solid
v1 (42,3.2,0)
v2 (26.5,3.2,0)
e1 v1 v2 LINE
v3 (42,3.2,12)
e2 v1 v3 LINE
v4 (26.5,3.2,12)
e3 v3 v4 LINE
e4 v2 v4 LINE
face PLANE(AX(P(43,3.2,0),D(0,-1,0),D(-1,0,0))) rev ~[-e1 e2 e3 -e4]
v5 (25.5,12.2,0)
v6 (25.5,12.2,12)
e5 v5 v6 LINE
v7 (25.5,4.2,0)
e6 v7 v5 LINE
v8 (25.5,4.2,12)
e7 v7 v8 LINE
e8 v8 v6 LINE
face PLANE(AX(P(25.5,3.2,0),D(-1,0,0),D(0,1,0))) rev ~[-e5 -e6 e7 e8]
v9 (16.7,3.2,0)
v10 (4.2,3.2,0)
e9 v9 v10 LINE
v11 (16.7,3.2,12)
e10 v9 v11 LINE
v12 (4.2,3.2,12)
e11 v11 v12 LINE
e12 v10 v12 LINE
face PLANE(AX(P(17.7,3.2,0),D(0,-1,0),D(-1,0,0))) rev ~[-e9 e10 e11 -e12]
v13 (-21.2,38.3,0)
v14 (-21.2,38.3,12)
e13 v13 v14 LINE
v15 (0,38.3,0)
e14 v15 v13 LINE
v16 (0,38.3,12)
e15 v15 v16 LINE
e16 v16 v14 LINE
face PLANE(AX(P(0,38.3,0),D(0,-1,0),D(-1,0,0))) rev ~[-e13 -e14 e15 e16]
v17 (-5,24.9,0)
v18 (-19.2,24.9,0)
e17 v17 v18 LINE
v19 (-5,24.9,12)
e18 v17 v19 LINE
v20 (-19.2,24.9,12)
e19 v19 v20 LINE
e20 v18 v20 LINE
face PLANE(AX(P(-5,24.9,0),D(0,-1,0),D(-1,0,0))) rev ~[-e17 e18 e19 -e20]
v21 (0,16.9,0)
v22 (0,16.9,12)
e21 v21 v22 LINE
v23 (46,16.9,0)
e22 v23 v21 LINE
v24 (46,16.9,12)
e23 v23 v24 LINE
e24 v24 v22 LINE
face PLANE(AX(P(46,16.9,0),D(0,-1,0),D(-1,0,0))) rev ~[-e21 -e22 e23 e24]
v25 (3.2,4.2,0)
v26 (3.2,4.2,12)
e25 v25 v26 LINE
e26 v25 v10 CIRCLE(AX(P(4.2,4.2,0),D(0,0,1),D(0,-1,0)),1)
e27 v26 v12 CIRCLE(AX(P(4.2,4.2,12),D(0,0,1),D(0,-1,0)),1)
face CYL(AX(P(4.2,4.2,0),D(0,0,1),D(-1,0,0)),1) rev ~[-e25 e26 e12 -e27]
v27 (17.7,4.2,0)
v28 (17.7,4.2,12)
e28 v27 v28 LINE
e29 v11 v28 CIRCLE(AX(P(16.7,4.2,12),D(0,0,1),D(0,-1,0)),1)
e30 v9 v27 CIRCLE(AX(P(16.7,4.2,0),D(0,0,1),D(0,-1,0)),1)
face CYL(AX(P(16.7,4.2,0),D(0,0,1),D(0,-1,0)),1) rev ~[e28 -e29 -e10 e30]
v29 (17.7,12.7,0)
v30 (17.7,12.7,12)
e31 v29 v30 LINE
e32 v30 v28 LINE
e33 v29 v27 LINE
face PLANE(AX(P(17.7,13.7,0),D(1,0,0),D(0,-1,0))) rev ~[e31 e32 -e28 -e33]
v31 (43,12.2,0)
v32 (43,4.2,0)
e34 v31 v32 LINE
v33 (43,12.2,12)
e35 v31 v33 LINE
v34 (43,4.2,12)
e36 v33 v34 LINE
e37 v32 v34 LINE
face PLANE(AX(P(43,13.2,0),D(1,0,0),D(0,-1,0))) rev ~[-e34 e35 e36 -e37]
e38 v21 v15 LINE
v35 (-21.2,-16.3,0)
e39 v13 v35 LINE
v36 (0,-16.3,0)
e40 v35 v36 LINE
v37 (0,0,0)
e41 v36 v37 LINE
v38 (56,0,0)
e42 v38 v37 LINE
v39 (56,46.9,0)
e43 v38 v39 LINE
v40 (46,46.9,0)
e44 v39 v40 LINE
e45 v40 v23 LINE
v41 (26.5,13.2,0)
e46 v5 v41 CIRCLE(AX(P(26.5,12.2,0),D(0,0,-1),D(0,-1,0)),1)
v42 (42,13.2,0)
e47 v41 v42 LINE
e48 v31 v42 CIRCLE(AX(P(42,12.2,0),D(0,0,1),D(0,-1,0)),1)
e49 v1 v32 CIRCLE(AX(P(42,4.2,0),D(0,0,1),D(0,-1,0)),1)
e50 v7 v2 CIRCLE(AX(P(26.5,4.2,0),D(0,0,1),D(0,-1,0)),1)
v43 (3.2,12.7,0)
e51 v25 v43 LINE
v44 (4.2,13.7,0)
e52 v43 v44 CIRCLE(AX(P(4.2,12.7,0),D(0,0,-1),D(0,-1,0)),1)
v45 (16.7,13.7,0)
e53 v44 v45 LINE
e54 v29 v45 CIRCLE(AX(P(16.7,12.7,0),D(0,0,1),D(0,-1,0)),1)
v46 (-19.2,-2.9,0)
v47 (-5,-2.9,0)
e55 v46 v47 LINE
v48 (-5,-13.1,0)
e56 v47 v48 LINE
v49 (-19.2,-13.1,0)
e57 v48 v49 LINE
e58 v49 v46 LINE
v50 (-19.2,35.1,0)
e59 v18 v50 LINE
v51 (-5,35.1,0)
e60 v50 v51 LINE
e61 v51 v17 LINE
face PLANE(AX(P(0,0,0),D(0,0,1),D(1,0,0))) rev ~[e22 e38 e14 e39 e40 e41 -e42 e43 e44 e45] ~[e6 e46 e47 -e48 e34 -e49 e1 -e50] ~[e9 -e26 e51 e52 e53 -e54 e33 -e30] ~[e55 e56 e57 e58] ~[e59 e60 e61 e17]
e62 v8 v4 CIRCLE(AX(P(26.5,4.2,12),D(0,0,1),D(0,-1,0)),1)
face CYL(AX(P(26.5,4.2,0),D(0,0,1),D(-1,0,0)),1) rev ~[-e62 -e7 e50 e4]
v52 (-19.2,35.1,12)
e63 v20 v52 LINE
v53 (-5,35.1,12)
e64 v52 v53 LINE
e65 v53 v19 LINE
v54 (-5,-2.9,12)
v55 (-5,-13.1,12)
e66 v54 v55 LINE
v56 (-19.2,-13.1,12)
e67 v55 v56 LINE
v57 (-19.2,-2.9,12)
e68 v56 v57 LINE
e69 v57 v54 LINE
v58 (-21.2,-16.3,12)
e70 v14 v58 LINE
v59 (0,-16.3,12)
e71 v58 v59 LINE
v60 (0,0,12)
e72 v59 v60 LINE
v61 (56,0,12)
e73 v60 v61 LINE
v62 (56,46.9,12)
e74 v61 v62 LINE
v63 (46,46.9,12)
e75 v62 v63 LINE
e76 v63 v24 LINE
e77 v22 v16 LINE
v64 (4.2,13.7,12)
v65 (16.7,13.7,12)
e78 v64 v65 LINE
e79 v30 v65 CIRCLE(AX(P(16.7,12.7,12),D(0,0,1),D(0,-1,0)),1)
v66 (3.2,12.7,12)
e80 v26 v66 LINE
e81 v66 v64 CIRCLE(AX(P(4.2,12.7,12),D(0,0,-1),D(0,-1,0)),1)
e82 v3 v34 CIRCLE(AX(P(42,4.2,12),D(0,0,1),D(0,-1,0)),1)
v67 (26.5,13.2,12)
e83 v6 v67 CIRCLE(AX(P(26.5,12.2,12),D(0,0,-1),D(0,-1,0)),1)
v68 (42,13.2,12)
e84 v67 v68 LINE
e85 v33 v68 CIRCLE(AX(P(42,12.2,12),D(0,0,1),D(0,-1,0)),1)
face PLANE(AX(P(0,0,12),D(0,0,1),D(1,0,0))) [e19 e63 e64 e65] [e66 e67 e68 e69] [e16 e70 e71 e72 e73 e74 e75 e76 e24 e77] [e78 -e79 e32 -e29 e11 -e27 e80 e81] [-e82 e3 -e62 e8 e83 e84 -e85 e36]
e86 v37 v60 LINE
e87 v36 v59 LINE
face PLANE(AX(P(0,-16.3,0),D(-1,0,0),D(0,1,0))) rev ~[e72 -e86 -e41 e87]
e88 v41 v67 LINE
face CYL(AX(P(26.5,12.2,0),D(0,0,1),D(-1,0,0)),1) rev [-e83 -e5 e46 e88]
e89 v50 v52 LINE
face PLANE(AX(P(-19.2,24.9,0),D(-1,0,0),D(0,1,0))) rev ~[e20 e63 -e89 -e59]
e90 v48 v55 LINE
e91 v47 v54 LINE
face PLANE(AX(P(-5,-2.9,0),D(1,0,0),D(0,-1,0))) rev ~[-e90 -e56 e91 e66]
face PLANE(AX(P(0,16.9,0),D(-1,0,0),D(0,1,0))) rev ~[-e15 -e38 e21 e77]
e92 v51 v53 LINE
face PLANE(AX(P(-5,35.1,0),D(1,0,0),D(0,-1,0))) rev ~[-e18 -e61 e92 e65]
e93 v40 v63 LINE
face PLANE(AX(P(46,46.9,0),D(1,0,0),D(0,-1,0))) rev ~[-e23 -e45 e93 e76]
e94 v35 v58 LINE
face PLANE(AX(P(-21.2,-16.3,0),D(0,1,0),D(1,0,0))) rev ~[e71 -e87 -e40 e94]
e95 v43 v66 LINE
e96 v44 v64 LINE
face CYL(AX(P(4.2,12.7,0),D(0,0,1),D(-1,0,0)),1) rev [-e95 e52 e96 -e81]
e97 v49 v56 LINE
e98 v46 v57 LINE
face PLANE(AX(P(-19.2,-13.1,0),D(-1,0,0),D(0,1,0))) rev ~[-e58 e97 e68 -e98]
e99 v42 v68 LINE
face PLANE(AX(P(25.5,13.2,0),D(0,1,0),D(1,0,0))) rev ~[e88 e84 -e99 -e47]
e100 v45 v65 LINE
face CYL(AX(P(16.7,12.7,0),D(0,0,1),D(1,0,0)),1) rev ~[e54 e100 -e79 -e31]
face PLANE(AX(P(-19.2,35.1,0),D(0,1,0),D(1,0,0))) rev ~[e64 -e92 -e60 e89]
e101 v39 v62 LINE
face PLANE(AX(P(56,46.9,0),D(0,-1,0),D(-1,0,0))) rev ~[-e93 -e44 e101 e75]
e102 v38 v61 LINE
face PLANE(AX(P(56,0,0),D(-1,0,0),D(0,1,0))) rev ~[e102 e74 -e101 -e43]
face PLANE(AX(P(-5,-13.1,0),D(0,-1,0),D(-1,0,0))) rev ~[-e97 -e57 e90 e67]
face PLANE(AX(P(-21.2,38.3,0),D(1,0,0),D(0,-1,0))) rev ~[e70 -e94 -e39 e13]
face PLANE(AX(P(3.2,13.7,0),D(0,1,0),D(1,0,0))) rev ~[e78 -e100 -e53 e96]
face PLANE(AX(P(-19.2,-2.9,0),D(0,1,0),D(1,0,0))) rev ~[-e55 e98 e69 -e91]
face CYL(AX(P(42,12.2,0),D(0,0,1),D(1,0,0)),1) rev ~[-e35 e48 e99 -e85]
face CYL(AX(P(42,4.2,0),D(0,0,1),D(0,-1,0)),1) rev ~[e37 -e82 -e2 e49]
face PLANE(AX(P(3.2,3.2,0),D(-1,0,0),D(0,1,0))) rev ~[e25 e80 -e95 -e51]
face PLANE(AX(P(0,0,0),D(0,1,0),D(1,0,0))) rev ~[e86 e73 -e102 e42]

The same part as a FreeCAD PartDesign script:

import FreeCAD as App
import Part
import Sketcher
Q = App.Units.Quantity


def edges_at(feature, points):
    """Names of the edges that pass closest to the given points."""
    edges = feature.Shape.Edges
    near = lambda p: min(range(len(edges)), key=lambda i: edges[i].distToShape(Part.Vertex(*p))[0])
    return sorted({f"Edge{near(p) + 1}" for p in points})

doc = App.newDocument("Part")
body = doc.addObject("PartDesign::Body", "Body")

# Sketch on XY plane
sketch1 = doc.addObject("Sketcher::SketchObject", "Sketch")
body.addObject(sketch1)
sketch1.AttachmentSupport = (doc.XY_Plane, [""])
sketch1.MapMode = "FlatFace"
sketch1.addGeometry([
    Part.LineSegment(App.Vector(46, 17, 0), App.Vector(0, 17, 0)),  # 0
    Part.LineSegment(App.Vector(0, 17, 0), App.Vector(0, 38, 0)),  # 1
    Part.LineSegment(App.Vector(0, 38, 0), App.Vector(-21, 38, 0)),  # 2
    Part.LineSegment(App.Vector(-21, 38, 0), App.Vector(-21, -16, 0)),  # 3
    Part.LineSegment(App.Vector(-21, -16, 0), App.Vector(0, -16, 0)),  # 4
    Part.LineSegment(App.Vector(0, -16, 0), App.Vector(0, 0, 0)),  # 5
    Part.LineSegment(App.Vector(0, 0, 0), App.Vector(56, 0, 0)),  # 6
    Part.LineSegment(App.Vector(56, 0, 0), App.Vector(56, 47, 0)),  # 7
    Part.LineSegment(App.Vector(56, 47, 0), App.Vector(46, 47, 0)),  # 8
    Part.LineSegment(App.Vector(46, 47, 0), App.Vector(46, 17, 0)),  # 9
    Part.LineSegment(App.Vector(3, 3, 0), App.Vector(3, 14, 0)),  # 10
    Part.LineSegment(App.Vector(3, 14, 0), App.Vector(18, 14, 0)),  # 11
    Part.LineSegment(App.Vector(18, 14, 0), App.Vector(18, 3, 0)),  # 12
    Part.LineSegment(App.Vector(18, 3, 0), App.Vector(3, 3, 0)),  # 13
    Part.LineSegment(App.Vector(26, 3, 0), App.Vector(26, 13, 0)),  # 14
    Part.LineSegment(App.Vector(26, 13, 0), App.Vector(43, 13, 0)),  # 15
    Part.LineSegment(App.Vector(43, 13, 0), App.Vector(43, 3, 0)),  # 16
    Part.LineSegment(App.Vector(43, 3, 0), App.Vector(26, 3, 0)),  # 17
    Part.LineSegment(App.Vector(-19, 35, 0), App.Vector(-5, 35, 0)),  # 18
    Part.LineSegment(App.Vector(-5, 35, 0), App.Vector(-5, 25, 0)),  # 19
    Part.LineSegment(App.Vector(-5, 25, 0), App.Vector(-19, 25, 0)),  # 20
    Part.LineSegment(App.Vector(-19, 25, 0), App.Vector(-19, 35, 0)),  # 21
    Part.LineSegment(App.Vector(-19, -13, 0), App.Vector(-19, -3, 0)),  # 22
    Part.LineSegment(App.Vector(-19, -3, 0), App.Vector(-5, -3, 0)),  # 23
    Part.LineSegment(App.Vector(-5, -3, 0), App.Vector(-5, -13, 0)),  # 24
    Part.LineSegment(App.Vector(-5, -13, 0), App.Vector(-19, -13, 0)),  # 25
], False)
sketch1.addConstraint([
    Sketcher.Constraint("Coincident", 0, 2, 1, 1),
    Sketcher.Constraint("Coincident", 1, 2, 2, 1),
    Sketcher.Constraint("Coincident", 2, 2, 3, 1),
    Sketcher.Constraint("Coincident", 3, 2, 4, 1),
    Sketcher.Constraint("Coincident", 4, 2, 5, 1),
    Sketcher.Constraint("Coincident", 5, 2, 6, 1),
    Sketcher.Constraint("Coincident", 6, 2, 7, 1),
    Sketcher.Constraint("Coincident", 7, 2, 8, 1),
    Sketcher.Constraint("Coincident", 8, 2, 9, 1),
    Sketcher.Constraint("Coincident", 9, 2, 0, 1),
    Sketcher.Constraint("Coincident", 10, 2, 11, 1),
    Sketcher.Constraint("Coincident", 11, 2, 12, 1),
    Sketcher.Constraint("Coincident", 12, 2, 13, 1),
    Sketcher.Constraint("Coincident", 13, 2, 10, 1),
    Sketcher.Constraint("Coincident", 14, 2, 15, 1),
    Sketcher.Constraint("Coincident", 15, 2, 16, 1),
    Sketcher.Constraint("Coincident", 16, 2, 17, 1),
    Sketcher.Constraint("Coincident", 17, 2, 14, 1),
    Sketcher.Constraint("Coincident", 18, 2, 19, 1),
    Sketcher.Constraint("Coincident", 19, 2, 20, 1),
    Sketcher.Constraint("Coincident", 20, 2, 21, 1),
    Sketcher.Constraint("Coincident", 21, 2, 18, 1),
    Sketcher.Constraint("Coincident", 22, 2, 23, 1),
    Sketcher.Constraint("Coincident", 23, 2, 24, 1),
    Sketcher.Constraint("Coincident", 24, 2, 25, 1),
    Sketcher.Constraint("Coincident", 25, 2, 22, 1),
    Sketcher.Constraint("Horizontal", 0),
    Sketcher.Constraint("Vertical", 1),
    Sketcher.Constraint("Horizontal", 2),
    Sketcher.Constraint("Vertical", 3),
    Sketcher.Constraint("Horizontal", 4),
    Sketcher.Constraint("Vertical", 5),
    Sketcher.Constraint("Horizontal", 6),
    Sketcher.Constraint("Vertical", 7),
    Sketcher.Constraint("Horizontal", 8),
    Sketcher.Constraint("Vertical", 9),
    Sketcher.Constraint("Vertical", 10),
    Sketcher.Constraint("Horizontal", 11),
    Sketcher.Constraint("Vertical", 12),
    Sketcher.Constraint("Horizontal", 13),
    Sketcher.Constraint("Vertical", 14),
    Sketcher.Constraint("Horizontal", 15),
    Sketcher.Constraint("Vertical", 16),
    Sketcher.Constraint("Horizontal", 17),
    Sketcher.Constraint("Horizontal", 18),
    Sketcher.Constraint("Vertical", 19),
    Sketcher.Constraint("Horizontal", 20),
    Sketcher.Constraint("Vertical", 21),
    Sketcher.Constraint("Vertical", 22),
    Sketcher.Constraint("Horizontal", 23),
    Sketcher.Constraint("Vertical", 24),
    Sketcher.Constraint("Horizontal", 25),
    Sketcher.Constraint("Coincident", 5, 2, -1, 1),
    Sketcher.Constraint("PointOnObject", 0, 2, -2),
    Sketcher.Constraint("Horizontal", 13, 2, 16, 2),
    Sketcher.Constraint("Vertical", 21, 2, 22, 2),
    Sketcher.Constraint("Vertical", 19, 2, 23, 2),
    Sketcher.Constraint("Equal", 8, 14),
    Sketcher.Constraint("Equal", 21, 22),
    Sketcher.Constraint("DistanceX", 0, 2, 0, 1, Q("46 mm")),
    Sketcher.Constraint("DistanceX", 8, 2, 8, 1, Q("10 mm")),
    Sketcher.Constraint("DistanceY", 9, 2, 9, 1, Q("30 mm")),
    Sketcher.Constraint("DistanceX", 11, 1, 11, 2, Q("14.5 mm")),
    Sketcher.Constraint("DistanceX", 15, 1, 15, 2, Q("17.5 mm")),
    Sketcher.Constraint("DistanceX", 18, 1, 18, 2, Q("14.2 mm")),
    Sketcher.Constraint("DistanceY", 10, 1, 10, 2, Q("10.5 mm")),
    Sketcher.Constraint("DistanceY", 19, 2, 19, 1, Q("10.2 mm")),
    Sketcher.Constraint("DistanceX", 18, 2, -1, 1, Q("5 mm")),
    Sketcher.Constraint("DistanceY", 4, 2, 10, 2, Q("30 mm")),
    Sketcher.Constraint("DistanceY", 0, 2, 19, 2, Q("8 mm")),
    Sketcher.Constraint("DistanceX", 2, 2, 20, 2, Q("2 mm")),
    Sketcher.Constraint("DistanceX", -1, 1, 10, 2, Q("3.2 mm")),
    Sketcher.Constraint("DistanceY", -1, 1, 12, 2, Q("3.2 mm")),
    Sketcher.Constraint("DistanceY", 10, 2, 0, 2, Q("3.2 mm")),
    Sketcher.Constraint("DistanceX", 11, 2, 14, 2, Q("7.8 mm")),
    Sketcher.Constraint("DistanceY", 18, 2, 1, 2, Q("3.2 mm")),
    Sketcher.Constraint("DistanceY", 4, 2, 24, 2, Q("3.2 mm")),
])
pad1 = doc.addObject("PartDesign::Pad", "Pad")
body.addObject(pad1)
pad1.Profile = sketch1
pad1.Length = 12
doc.recompute()

fillet = doc.addObject("PartDesign::Fillet", "Fillet")
body.addObject(fillet)
fillet.Base = (pad1, edges_at(pad1, [
    (3.2, 13.7, 6),
    (25.5, 13.2, 6),
    (3.2, 3.2, 6),
    (25.5, 3.2, 6),
    (43, 3.2, 6),
    (17.7, 3.2, 6),
    (43, 13.2, 6),
    (17.7, 13.7, 6),
]))
fillet.Radius = 1

doc.recompute()
